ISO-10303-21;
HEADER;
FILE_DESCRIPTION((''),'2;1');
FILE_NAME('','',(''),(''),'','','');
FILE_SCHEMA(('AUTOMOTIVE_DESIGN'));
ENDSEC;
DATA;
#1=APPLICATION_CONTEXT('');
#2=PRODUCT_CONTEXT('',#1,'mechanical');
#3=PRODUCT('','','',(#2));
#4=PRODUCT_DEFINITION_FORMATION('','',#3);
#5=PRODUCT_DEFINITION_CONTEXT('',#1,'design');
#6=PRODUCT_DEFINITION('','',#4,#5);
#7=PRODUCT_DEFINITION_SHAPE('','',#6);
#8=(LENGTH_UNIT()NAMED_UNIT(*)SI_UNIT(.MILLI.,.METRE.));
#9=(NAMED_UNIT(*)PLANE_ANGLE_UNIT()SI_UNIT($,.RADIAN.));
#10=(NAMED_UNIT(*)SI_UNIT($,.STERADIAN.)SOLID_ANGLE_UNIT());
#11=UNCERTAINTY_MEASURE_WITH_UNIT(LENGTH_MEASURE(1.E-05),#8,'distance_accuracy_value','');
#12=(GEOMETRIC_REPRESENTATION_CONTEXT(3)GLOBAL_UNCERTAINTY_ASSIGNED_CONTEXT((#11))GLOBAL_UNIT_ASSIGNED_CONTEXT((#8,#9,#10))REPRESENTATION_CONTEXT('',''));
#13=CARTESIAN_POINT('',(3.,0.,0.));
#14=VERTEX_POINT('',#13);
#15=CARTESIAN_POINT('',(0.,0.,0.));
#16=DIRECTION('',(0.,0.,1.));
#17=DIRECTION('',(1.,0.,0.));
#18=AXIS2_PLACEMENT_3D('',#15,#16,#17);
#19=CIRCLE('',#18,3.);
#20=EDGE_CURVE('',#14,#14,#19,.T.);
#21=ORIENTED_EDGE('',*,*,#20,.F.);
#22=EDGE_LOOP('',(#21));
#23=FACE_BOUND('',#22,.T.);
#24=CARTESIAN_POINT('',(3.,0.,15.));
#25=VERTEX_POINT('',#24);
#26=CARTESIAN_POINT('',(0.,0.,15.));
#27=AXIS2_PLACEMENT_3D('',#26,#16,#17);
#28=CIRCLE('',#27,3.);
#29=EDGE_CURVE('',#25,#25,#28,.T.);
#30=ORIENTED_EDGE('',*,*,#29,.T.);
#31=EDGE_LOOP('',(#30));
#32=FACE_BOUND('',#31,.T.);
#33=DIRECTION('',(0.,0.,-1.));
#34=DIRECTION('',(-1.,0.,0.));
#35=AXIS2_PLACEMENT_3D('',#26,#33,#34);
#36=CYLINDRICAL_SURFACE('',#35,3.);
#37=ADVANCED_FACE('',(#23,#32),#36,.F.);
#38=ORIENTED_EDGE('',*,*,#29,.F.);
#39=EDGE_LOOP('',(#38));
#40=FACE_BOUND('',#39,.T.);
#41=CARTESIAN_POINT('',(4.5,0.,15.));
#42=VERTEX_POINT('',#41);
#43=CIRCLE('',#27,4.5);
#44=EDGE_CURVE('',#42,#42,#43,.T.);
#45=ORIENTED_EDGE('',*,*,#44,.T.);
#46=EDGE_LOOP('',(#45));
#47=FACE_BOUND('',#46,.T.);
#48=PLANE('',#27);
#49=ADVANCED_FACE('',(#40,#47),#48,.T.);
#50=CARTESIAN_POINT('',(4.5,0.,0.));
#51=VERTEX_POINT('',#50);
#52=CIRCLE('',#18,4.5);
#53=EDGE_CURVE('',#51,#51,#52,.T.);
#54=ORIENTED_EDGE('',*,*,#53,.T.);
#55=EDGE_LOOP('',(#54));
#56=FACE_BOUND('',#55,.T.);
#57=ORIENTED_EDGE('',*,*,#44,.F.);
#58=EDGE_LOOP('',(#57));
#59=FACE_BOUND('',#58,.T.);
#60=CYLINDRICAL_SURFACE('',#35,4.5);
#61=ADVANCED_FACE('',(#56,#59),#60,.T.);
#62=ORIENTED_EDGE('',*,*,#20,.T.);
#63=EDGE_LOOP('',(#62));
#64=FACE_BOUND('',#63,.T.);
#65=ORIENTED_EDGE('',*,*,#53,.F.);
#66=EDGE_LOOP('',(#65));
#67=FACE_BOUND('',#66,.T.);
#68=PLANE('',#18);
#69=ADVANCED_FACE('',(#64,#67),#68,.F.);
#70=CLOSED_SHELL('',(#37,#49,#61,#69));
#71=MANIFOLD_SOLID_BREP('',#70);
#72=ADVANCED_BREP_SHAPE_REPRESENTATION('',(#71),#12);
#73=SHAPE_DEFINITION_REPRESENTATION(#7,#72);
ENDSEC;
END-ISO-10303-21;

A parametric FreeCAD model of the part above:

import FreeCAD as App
import Part
import Sketcher
from FreeCAD import Vector
Q = App.Units.Quantity

doc = App.newDocument("Part")
body = doc.addObject("PartDesign::Body", "Body")

# Sketch on XY plane
sketch1 = body.newObject("Sketcher::SketchObject", "Sketch")
sketch1.AttachmentSupport = (doc.getObject("XY_Plane"), [""])
sketch1.MapMode = "FlatFace"
sketch1.addGeometry([
    Part.Circle(Vector(0, 0, 0), Vector(0, 0, 1), 4.5),
    Part.Circle(Vector(0, 0, 0), Vector(0, 0, 1), 3),
], False)
sketch1.addConstraint([
    Sketcher.Constraint("Coincident", 0, 3, -1, 1),
    Sketcher.Constraint("Coincident", 1, 3, -1, 1),
    Sketcher.Constraint("Diameter", 0, Q("9 mm")),
    Sketcher.Constraint("Diameter", 1, Q("6 mm")),
])
pad1 = body.newObject("PartDesign::Pad", "Pad")
pad1.Profile = sketch1
pad1.Length = 15

doc.recompute()
